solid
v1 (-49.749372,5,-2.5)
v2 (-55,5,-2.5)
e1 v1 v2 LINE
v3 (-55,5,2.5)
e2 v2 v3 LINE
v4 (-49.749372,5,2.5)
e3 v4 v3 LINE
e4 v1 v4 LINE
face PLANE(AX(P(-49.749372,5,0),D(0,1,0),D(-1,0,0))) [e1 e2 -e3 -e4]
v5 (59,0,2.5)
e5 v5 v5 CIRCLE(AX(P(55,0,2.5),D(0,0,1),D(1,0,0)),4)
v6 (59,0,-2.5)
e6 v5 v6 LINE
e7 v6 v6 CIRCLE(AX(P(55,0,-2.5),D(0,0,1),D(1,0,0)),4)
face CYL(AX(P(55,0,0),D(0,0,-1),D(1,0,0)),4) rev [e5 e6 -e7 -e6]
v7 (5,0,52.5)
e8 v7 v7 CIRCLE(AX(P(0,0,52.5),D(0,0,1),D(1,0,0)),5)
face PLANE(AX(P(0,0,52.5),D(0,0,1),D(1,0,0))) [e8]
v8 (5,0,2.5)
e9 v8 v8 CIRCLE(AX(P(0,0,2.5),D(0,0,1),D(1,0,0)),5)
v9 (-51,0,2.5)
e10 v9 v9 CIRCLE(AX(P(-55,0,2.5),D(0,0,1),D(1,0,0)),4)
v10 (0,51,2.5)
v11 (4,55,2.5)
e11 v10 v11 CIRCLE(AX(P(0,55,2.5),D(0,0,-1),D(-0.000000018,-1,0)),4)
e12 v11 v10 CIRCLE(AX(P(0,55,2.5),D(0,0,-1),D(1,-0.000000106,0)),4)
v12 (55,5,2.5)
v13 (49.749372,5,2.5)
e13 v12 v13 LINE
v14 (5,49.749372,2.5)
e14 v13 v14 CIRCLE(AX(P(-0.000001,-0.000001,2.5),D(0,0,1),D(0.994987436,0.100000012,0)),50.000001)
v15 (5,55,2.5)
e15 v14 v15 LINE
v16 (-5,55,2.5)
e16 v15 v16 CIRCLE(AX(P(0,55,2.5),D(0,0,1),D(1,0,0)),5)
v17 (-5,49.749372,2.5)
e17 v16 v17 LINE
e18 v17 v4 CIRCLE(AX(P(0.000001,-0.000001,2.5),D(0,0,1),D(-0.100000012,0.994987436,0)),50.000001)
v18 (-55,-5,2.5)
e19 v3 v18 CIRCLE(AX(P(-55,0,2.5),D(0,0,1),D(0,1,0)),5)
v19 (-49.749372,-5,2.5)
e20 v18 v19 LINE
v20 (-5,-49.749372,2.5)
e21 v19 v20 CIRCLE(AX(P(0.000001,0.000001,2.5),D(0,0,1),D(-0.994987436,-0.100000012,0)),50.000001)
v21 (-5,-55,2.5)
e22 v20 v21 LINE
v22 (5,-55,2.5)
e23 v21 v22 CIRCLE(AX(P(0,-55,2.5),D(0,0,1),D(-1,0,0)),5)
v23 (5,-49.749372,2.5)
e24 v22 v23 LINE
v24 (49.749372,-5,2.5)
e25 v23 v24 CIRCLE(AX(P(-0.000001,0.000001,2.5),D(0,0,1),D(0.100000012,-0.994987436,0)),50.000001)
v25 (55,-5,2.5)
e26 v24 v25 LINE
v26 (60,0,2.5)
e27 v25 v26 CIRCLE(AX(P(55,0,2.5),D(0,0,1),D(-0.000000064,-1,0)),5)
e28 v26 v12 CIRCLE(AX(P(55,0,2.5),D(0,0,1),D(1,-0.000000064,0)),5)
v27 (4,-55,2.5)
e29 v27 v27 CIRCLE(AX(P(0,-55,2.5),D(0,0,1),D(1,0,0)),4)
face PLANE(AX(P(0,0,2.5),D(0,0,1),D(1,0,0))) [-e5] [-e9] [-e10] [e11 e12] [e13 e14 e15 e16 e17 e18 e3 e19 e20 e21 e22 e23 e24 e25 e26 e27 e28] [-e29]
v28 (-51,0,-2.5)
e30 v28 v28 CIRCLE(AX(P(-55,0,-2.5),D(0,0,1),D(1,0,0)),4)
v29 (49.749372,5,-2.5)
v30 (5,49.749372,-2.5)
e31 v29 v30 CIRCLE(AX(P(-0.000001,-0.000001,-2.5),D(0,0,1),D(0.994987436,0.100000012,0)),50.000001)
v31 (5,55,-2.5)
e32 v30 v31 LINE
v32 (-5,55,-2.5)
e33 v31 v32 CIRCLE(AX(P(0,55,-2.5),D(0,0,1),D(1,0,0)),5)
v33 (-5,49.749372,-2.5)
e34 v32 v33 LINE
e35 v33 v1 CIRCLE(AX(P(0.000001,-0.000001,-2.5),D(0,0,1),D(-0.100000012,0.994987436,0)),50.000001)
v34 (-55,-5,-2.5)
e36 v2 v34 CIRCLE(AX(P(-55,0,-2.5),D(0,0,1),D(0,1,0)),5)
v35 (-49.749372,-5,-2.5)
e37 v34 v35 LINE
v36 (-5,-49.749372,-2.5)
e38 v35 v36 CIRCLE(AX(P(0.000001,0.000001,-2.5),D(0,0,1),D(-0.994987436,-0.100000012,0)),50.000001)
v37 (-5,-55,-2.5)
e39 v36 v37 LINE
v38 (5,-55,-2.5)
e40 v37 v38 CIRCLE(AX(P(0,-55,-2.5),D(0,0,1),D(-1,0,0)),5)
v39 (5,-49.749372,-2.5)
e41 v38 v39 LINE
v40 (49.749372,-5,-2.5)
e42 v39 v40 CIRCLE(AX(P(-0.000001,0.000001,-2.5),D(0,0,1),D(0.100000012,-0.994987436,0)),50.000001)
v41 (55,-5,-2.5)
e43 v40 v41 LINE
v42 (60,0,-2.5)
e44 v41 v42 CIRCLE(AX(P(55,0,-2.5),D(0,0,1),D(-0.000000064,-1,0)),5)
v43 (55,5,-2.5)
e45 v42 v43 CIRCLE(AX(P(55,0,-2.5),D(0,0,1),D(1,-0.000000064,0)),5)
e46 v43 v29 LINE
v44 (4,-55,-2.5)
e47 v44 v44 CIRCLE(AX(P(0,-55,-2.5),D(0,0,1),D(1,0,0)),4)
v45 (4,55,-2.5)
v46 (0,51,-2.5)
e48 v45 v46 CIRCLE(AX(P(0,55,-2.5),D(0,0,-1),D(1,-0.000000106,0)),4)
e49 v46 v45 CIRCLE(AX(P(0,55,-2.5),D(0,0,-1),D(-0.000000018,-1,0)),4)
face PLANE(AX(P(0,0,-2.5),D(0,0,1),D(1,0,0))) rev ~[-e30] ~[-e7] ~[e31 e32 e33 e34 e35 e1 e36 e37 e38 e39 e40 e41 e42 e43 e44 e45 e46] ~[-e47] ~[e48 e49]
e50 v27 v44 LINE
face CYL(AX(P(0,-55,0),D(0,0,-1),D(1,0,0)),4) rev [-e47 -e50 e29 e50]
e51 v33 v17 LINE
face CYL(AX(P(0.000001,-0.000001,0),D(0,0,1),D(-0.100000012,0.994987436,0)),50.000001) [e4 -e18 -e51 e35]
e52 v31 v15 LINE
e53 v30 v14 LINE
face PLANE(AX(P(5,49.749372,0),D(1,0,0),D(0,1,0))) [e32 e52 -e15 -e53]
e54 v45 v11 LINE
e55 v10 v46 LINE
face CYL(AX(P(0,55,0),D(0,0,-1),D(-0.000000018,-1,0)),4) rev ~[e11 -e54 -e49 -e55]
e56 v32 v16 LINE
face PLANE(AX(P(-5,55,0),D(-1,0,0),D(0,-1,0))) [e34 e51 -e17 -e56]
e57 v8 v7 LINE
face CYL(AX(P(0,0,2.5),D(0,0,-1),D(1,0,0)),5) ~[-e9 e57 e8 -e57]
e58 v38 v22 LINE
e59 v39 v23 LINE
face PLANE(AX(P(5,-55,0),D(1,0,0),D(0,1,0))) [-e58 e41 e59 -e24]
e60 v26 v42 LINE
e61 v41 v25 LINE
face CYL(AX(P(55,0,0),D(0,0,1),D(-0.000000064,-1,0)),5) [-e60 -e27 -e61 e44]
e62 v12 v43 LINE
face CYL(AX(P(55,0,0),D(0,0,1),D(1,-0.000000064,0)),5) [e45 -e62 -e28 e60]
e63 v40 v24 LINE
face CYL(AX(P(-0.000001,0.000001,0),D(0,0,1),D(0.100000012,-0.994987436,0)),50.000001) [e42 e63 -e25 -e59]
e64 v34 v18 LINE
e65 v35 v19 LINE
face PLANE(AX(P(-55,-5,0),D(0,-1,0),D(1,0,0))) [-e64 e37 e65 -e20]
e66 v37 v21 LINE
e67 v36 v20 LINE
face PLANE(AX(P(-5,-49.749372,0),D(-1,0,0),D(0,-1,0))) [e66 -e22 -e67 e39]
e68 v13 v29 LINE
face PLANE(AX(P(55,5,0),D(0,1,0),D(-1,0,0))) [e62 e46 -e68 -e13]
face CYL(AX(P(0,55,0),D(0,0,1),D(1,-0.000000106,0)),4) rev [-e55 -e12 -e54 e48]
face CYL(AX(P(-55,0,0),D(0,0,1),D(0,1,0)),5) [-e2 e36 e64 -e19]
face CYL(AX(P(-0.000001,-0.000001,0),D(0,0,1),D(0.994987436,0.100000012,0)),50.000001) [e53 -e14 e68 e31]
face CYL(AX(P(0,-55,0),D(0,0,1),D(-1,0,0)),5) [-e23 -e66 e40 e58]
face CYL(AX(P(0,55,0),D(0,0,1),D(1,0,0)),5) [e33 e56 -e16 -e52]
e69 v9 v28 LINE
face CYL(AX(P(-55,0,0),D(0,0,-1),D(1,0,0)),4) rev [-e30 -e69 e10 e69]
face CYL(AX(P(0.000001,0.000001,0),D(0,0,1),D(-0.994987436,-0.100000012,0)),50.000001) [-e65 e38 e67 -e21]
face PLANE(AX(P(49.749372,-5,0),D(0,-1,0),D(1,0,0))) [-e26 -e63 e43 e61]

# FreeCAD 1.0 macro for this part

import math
import FreeCAD as App
import Part
import Sketcher

V = App.Vector
Q = App.Units.Quantity

doc = App.newDocument("Part")
body = doc.addObject("PartDesign::Body", "Body")

# Sketch on XY plane
sketch1 = body.newObject("Sketcher::SketchObject", "Sketch")
sketch1.AttachmentSupport = (doc.getObject("XY_Plane"), [""])
sketch1.MapMode = "FlatFace"
sketch1.addGeometry(Part.ArcOfCircle(Part.Circle(V(0, 0, 0), V(0, 0, 1), 50), math.radians(6), math.radians(84)), False)
sketch1.addGeometry(Part.LineSegment(V(5, 49.7, 0), V(5, 55, 0)), False)
sketch1.addGeometry(Part.ArcOfCircle(Part.Circle(V(0, 55, 0), V(0, 0, 1), 5), math.radians(0), math.radians(180)), False)
sketch1.addGeometry(Part.LineSegment(V(-5, 55, 0), V(-5, 49.7, 0)), False)
sketch1.addGeometry(Part.ArcOfCircle(Part.Circle(V(0, 0, 0), V(0, 0, 1), 50), math.radians(96), math.radians(174)), False)
sketch1.addGeometry(Part.LineSegment(V(-49.7, 5, 0), V(-55, 5, 0)), False)
sketch1.addGeometry(Part.ArcOfCircle(Part.Circle(V(-55, 0, 0), V(0, 0, 1), 5), math.radians(90), math.radians(270)), False)
sketch1.addGeometry(Part.LineSegment(V(-55, -5, 0), V(-49.7, -5, 0)), False)
sketch1.addGeometry(Part.ArcOfCircle(Part.Circle(V(0, 0, 0), V(0, 0, 1), 50), math.radians(-174), math.radians(-96)), False)
sketch1.addGeometry(Part.LineSegment(V(-5, -49.7, 0), V(-5, -55, 0)), False)
sketch1.addGeometry(Part.ArcOfCircle(Part.Circle(V(0, -55, 0), V(0, 0, 1), 5), math.radians(180), math.radians(360)), False)
sketch1.addGeometry(Part.LineSegment(V(5, -55, 0), V(5, -49.7, 0)), False)
sketch1.addGeometry(Part.ArcOfCircle(Part.Circle(V(0, 0, 0), V(0, 0, 1), 50), math.radians(-84), math.radians(-6)), False)
sketch1.addGeometry(Part.LineSegment(V(49.7, -5, 0), V(55, -5, 0)), False)
sketch1.addGeometry(Part.ArcOfCircle(Part.Circle(V(55, 0, 0), V(0, 0, 1), 5), math.radians(-90), math.radians(0)), False)
sketch1.addGeometry(Part.ArcOfCircle(Part.Circle(V(55, 0, 0), V(0, 0, 1), 5), math.radians(0), math.radians(90)), False)
sketch1.addGeometry(Part.LineSegment(V(55, 5, 0), V(49.7, 5, 0)), False)
sketch1.addGeometry(Part.Circle(V(0, -55, 0), V(0, 0, 1), 4), False)
sketch1.addGeometry(Part.ArcOfCircle(Part.Circle(V(0, 55, 0), V(0, 0, 1), 4), math.radians(-90), math.radians(0)), False)
sketch1.addGeometry(Part.ArcOfCircle(Part.Circle(V(0, 55, 0), V(0, 0, 1), 4), math.radians(0), math.radians(270)), False)
sketch1.addGeometry(Part.Circle(V(55, 0, 0), V(0, 0, 1), 4), False)
sketch1.addGeometry(Part.Circle(V(-55, 0, 0), V(0, 0, 1), 4), False)
sketch1.addConstraint(Sketcher.Constraint("Coincident", 0, 2, 1, 1))
sketch1.addConstraint(Sketcher.Constraint("Tangent", 1, 2, 2, 1))
sketch1.addConstraint(Sketcher.Constraint("Tangent", 2, 2, 3, 1))
sketch1.addConstraint(Sketcher.Constraint("Coincident", 3, 2, 4, 1))
sketch1.addConstraint(Sketcher.Constraint("Coincident", 4, 2, 5, 1))
sketch1.addConstraint(Sketcher.Constraint("Tangent", 5, 2, 6, 1))
sketch1.addConstraint(Sketcher.Constraint("Tangent", 6, 2, 7, 1))
sketch1.addConstraint(Sketcher.Constraint("Coincident", 7, 2, 8, 1))
sketch1.addConstraint(Sketcher.Constraint("Coincident", 8, 2, 9, 1))
sketch1.addConstraint(Sketcher.Constraint("Tangent", 9, 2, 10, 1))
sketch1.addConstraint(Sketcher.Constraint("Tangent", 10, 2, 11, 1))
sketch1.addConstraint(Sketcher.Constraint("Coincident", 11, 2, 12, 1))
sketch1.addConstraint(Sketcher.Constraint("Coincident", 12, 2, 13, 1))
sketch1.addConstraint(Sketcher.Constraint("Tangent", 13, 2, 14, 1))
sketch1.addConstraint(Sketcher.Constraint("Tangent", 14, 2, 15, 1))
sketch1.addConstraint(Sketcher.Constraint("Tangent", 15, 2, 16, 1))
sketch1.addConstraint(Sketcher.Constraint("Coincident", 16, 2, 0, 1))
sketch1.addConstraint(Sketcher.Constraint("Tangent", 18, 1, 19, 2))
sketch1.addConstraint(Sketcher.Constraint("Coincident", 19, 1, 18, 2))
sketch1.addConstraint(Sketcher.Constraint("Vertical", 1))
sketch1.addConstraint(Sketcher.Constraint("Vertical", 3))
sketch1.addConstraint(Sketcher.Constraint("Horizontal", 5))
sketch1.addConstraint(Sketcher.Constraint("Horizontal", 7))
sketch1.addConstraint(Sketcher.Constraint("Vertical", 9))
sketch1.addConstraint(Sketcher.Constraint("Vertical", 11))
sketch1.addConstraint(Sketcher.Constraint("Horizontal", 13))
sketch1.addConstraint(Sketcher.Constraint("Horizontal", 16))
sketch1.addConstraint(Sketcher.Constraint("Coincident", 0, 3, -1, 1))
sketch1.addConstraint(Sketcher.Constraint("Coincident", 4, 3, -1, 1))
sketch1.addConstraint(Sketcher.Constraint("Coincident", 8, 3, -1, 1))
sketch1.addConstraint(Sketcher.Constraint("Coincident", 12, 3, -1, 1))
sketch1.addConstraint(Sketcher.Constraint("Coincident", 17, 3, 10, 3))
sketch1.addConstraint(Sketcher.Constraint("Coincident", 18, 3, 2, 3))
sketch1.addConstraint(Sketcher.Constraint("Coincident", 20, 3, 14, 3))
sketch1.addConstraint(Sketcher.Constraint("Coincident", 21, 3, 6, 3))
sketch1.addConstraint(Sketcher.Constraint("Equal", 0, 4))
sketch1.addConstraint(Sketcher.Constraint("Equal", 2, 6))
sketch1.addConstraint(Sketcher.Constraint("Equal", 4, 8))
sketch1.addConstraint(Sketcher.Constraint("Equal", 6, 10))
sketch1.addConstraint(Sketcher.Constraint("Equal", 8, 12))
sketch1.addConstraint(Sketcher.Constraint("Equal", 10, 14))
sketch1.addConstraint(Sketcher.Constraint("Equal", 14, 15))
sketch1.addConstraint(Sketcher.Constraint("Equal", 17, 18))
sketch1.addConstraint(Sketcher.Constraint("Equal", 19, 20))
sketch1.addConstraint(Sketcher.Constraint("Equal", 20, 21))
sketch1.addConstraint(Sketcher.Constraint("Symmetric", 2, 3, 10, 3, -1, 1))
sketch1.addConstraint(Sketcher.Constraint("Symmetric", 6, 3, 14, 3, -1, 1))
sketch1.addConstraint(Sketcher.Constraint("PointOnObject", 2, 3, -2))
sketch1.addConstraint(Sketcher.Constraint("PointOnObject", 6, 3, -1))
sketch1.addConstraint(Sketcher.Constraint("PointOnObject", 14, 2, -1))
sketch1.addConstraint(Sketcher.Constraint("PointOnObject", 18, 1, -2))
sketch1.addConstraint(Sketcher.Constraint("Horizontal", 2, 2, 19, 1))
sketch1.addConstraint(Sketcher.Constraint("Equal", 16, 1))
sketch1.addConstraint(Sketcher.Constraint("Diameter", 17, Q("8 mm")))
sketch1.addConstraint(Sketcher.Constraint("Radius", 0, Q("50.000001 mm")))
sketch1.addConstraint(Sketcher.Constraint("Radius", 2, Q("5 mm")))
sketch1.addConstraint(Sketcher.Constraint("DistanceY", -1, 1, 2, 3, Q("55 mm")))
pad1 = body.newObject("PartDesign::Pad", "Pad")
pad1.Profile = sketch1
pad1.Length = 5
pad1.Midplane = True

# Sketch on XY plane
sketch2 = body.newObject("Sketcher::SketchObject", "Sketch001")
sketch2.AttachmentSupport = (doc.getObject("XY_Plane"), [""])
sketch2.MapMode = "FlatFace"
sketch2.AttachmentOffset = App.Placement(V(0, 0, 2.5), App.Rotation())
sketch2.addGeometry(Part.Circle(V(0, 0, 0), V(0, 0, 1), 5), False)
sketch2.addConstraint(Sketcher.Constraint("Coincident", 0, 3, -1, 1))
sketch2.addConstraint(Sketcher.Constraint("Diameter", 0, Q("10 mm")))
pad2 = body.newObject("PartDesign::Pad", "Pad001")
pad2.Profile = sketch2
pad2.Length = 50

doc.recompute()
